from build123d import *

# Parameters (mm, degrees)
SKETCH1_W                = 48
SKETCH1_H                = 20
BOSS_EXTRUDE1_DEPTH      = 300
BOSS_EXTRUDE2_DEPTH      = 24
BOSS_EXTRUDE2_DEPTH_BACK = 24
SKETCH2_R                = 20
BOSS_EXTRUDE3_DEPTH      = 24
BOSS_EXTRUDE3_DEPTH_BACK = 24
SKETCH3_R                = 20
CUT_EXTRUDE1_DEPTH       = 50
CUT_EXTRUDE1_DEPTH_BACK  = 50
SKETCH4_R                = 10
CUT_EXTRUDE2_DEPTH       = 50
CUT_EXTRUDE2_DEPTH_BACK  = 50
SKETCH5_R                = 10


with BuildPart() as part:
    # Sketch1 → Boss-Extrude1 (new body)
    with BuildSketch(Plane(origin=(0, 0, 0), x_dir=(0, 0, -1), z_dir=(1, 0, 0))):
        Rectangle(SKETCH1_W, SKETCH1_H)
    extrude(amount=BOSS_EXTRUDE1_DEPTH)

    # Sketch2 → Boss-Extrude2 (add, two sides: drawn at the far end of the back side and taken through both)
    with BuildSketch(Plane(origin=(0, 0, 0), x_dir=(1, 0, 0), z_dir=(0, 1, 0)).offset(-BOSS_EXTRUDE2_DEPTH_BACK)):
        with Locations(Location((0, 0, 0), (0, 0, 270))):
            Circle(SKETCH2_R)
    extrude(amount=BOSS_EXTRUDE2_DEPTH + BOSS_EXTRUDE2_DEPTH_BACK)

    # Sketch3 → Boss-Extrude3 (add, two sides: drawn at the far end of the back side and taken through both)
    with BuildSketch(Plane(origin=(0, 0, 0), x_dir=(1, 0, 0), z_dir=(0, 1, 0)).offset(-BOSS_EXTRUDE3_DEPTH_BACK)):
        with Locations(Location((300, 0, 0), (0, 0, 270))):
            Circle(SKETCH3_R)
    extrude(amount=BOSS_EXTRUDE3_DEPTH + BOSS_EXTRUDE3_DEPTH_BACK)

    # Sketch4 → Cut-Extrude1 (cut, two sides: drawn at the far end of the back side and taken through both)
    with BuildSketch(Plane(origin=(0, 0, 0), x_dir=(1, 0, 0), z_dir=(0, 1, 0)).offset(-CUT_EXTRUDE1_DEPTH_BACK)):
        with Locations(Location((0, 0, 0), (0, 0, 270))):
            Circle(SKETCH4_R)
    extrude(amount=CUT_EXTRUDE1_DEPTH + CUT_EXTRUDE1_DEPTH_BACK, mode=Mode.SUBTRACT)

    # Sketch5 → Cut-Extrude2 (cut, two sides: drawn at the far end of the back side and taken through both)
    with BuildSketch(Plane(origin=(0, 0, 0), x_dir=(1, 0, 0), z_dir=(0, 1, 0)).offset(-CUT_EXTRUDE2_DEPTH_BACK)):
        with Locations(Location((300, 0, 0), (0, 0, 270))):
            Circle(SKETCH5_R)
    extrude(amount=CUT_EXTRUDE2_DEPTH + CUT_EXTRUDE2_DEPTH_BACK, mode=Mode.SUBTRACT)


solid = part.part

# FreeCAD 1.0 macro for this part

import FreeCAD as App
import Part
import Sketcher
Q = App.Units.Quantity

doc = App.newDocument("Part")
params = doc.addObject("Spreadsheet::Sheet", "Params")
for row, (alias, value) in enumerate([
    ("sketch1_width", "20 mm"),
    ("sketch1_height", "48 mm"),
    ("pad1_length", "300 mm"),
    ("sketch2_diameter", "40 mm"),
    ("pad2_length", "24 mm"),
    ("pad2_length2", "24 mm"),
    ("sketch3_diameter", "40 mm"),
    ("pad3_length", "24 mm"),
    ("pad3_length2", "24 mm"),
    ("sketch4_diameter", "20 mm"),
    ("sketch5_diameter", "20 mm"),
], start=1):
    params.set(f"A{row}", alias)
    params.set(f"B{row}", "=" + value)
    params.setAlias(f"B{row}", alias)

body = doc.addObject("PartDesign::Body", "Body")

# Sketch on YZ plane
sketch1 = body.newObject("Sketcher::SketchObject", "Sketch")
sketch1.AttachmentSupport = (doc.getObject("YZ_Plane"), [""])
sketch1.MapMode = "FlatFace"
sketch1.addGeometry(Part.LineSegment(App.Vector(10, 24, 0), App.Vector(-10, 24, 0)), False)
sketch1.addGeometry(Part.LineSegment(App.Vector(-10, 24, 0), App.Vector(-10, -24, 0)), False)
sketch1.addGeometry(Part.LineSegment(App.Vector(-10, -24, 0), App.Vector(10, -24, 0)), False)
sketch1.addGeometry(Part.LineSegment(App.Vector(10, -24, 0), App.Vector(10, 24, 0)), False)
sketch1.addConstraint(Sketcher.Constraint("Coincident", 0, 2, 1, 1))
sketch1.addConstraint(Sketcher.Constraint("Coincident", 1, 2, 2, 1))
sketch1.addConstraint(Sketcher.Constraint("Coincident", 2, 2, 3, 1))
sketch1.addConstraint(Sketcher.Constraint("Coincident", 3, 2, 0, 1))
sketch1.addConstraint(Sketcher.Constraint("Horizontal", 0))
sketch1.addConstraint(Sketcher.Constraint("Vertical", 1))
sketch1.addConstraint(Sketcher.Constraint("Horizontal", 2))
sketch1.addConstraint(Sketcher.Constraint("Vertical", 3))
sketch1.addConstraint(Sketcher.Constraint("Symmetric", 0, 2, 2, 2, -1, 1))
sketch1.addConstraint(Sketcher.Constraint("DistanceX", 0, 2, 0, 1, Q("20 mm")))
sketch1.addConstraint(Sketcher.Constraint("DistanceY", 1, 2, 1, 1, Q("48 mm")))
sketch1.setExpression("Constraints[9]", "Params.sketch1_width")
sketch1.setExpression("Constraints[10]", "Params.sketch1_height")
pad1 = body.newObject("PartDesign::Pad", "Pad")
pad1.Profile = sketch1
pad1.setExpression("Length", "Params.pad1_length")

# Sketch on XZ plane
sketch2 = body.newObject("Sketcher::SketchObject", "Sketch001")
sketch2.AttachmentSupport = (doc.getObject("XZ_Plane"), [""])
sketch2.MapMode = "FlatFace"
sketch2.addGeometry(Part.Circle(App.Vector(0, 0, 0), App.Vector(0, 0, 1), 20), False)
sketch2.addConstraint(Sketcher.Constraint("Coincident", 0, 3, -1, 1))
sketch2.addConstraint(Sketcher.Constraint("Diameter", 0, Q("40 mm")))
sketch2.setExpression("Constraints[1]", "Params.sketch2_diameter")
pad2 = body.newObject("PartDesign::Pad", "Pad001")
pad2.Profile = sketch2
pad2.Type = "TwoLengths"
pad2.setExpression("Length", "Params.pad2_length")
pad2.setExpression("Length2", "Params.pad2_length2")
pad2.Reversed = True

# Sketch on XZ plane
sketch3 = body.newObject("Sketcher::SketchObject", "Sketch002")
sketch3.AttachmentSupport = (doc.getObject("XZ_Plane"), [""])
sketch3.MapMode = "FlatFace"
sketch3.addGeometry(Part.Circle(App.Vector(300, 0, 0), App.Vector(0, 0, 1), 20), False)
sketch3.addConstraint(Sketcher.Constraint("PointOnObject", 0, 3, -1))
sketch3.addConstraint(Sketcher.Constraint("Diameter", 0, Q("40 mm")))
sketch3.addConstraint(Sketcher.Constraint("DistanceX", -1, 1, 0, 3, Q("300 mm")))
sketch3.setExpression("Constraints[1]", "Params.sketch3_diameter")
pad3 = body.newObject("PartDesign::Pad", "Pad002")
pad3.Profile = sketch3
pad3.Type = "TwoLengths"
pad3.setExpression("Length", "Params.pad3_length")
pad3.setExpression("Length2", "Params.pad3_length2")
pad3.Reversed = True

# Sketch on XZ plane
sketch4 = body.newObject("Sketcher::SketchObject", "Sketch003")
sketch4.AttachmentSupport = (doc.getObject("XZ_Plane"), [""])
sketch4.MapMode = "FlatFace"
sketch4.addGeometry(Part.Circle(App.Vector(0, 0, 0), App.Vector(0, 0, 1), 10), False)
sketch4.addConstraint(Sketcher.Constraint("Coincident", 0, 3, -1, 1))
sketch4.addConstraint(Sketcher.Constraint("Diameter", 0, Q("20 mm")))
sketch4.setExpression("Constraints[1]", "Params.sketch4_diameter")
pocket1 = body.newObject("PartDesign::Pocket", "Pocket")
pocket1.Profile = sketch4
pocket1.Type = "ThroughAll"
pocket1.Midplane = True

# Sketch on XZ plane
sketch5 = body.newObject("Sketcher::SketchObject", "Sketch004")
sketch5.AttachmentSupport = (doc.getObject("XZ_Plane"), [""])
sketch5.MapMode = "FlatFace"
sketch5.addGeometry(Part.Circle(App.Vector(300, 0, 0), App.Vector(0, 0, 1), 10), False)
sketch5.addConstraint(Sketcher.Constraint("PointOnObject", 0, 3, -1))
sketch5.addConstraint(Sketcher.Constraint("Diameter", 0, Q("20 mm")))
sketch5.addConstraint(Sketcher.Constraint("DistanceX", -1, 1, 0, 3, Q("300 mm")))
sketch5.setExpression("Constraints[1]", "Params.sketch5_diameter")
pocket2 = body.newObject("PartDesign::Pocket", "Pocket001")
pocket2.Profile = sketch5
pocket2.Type = "ThroughAll"
pocket2.Midplane = True

doc.recompute()
